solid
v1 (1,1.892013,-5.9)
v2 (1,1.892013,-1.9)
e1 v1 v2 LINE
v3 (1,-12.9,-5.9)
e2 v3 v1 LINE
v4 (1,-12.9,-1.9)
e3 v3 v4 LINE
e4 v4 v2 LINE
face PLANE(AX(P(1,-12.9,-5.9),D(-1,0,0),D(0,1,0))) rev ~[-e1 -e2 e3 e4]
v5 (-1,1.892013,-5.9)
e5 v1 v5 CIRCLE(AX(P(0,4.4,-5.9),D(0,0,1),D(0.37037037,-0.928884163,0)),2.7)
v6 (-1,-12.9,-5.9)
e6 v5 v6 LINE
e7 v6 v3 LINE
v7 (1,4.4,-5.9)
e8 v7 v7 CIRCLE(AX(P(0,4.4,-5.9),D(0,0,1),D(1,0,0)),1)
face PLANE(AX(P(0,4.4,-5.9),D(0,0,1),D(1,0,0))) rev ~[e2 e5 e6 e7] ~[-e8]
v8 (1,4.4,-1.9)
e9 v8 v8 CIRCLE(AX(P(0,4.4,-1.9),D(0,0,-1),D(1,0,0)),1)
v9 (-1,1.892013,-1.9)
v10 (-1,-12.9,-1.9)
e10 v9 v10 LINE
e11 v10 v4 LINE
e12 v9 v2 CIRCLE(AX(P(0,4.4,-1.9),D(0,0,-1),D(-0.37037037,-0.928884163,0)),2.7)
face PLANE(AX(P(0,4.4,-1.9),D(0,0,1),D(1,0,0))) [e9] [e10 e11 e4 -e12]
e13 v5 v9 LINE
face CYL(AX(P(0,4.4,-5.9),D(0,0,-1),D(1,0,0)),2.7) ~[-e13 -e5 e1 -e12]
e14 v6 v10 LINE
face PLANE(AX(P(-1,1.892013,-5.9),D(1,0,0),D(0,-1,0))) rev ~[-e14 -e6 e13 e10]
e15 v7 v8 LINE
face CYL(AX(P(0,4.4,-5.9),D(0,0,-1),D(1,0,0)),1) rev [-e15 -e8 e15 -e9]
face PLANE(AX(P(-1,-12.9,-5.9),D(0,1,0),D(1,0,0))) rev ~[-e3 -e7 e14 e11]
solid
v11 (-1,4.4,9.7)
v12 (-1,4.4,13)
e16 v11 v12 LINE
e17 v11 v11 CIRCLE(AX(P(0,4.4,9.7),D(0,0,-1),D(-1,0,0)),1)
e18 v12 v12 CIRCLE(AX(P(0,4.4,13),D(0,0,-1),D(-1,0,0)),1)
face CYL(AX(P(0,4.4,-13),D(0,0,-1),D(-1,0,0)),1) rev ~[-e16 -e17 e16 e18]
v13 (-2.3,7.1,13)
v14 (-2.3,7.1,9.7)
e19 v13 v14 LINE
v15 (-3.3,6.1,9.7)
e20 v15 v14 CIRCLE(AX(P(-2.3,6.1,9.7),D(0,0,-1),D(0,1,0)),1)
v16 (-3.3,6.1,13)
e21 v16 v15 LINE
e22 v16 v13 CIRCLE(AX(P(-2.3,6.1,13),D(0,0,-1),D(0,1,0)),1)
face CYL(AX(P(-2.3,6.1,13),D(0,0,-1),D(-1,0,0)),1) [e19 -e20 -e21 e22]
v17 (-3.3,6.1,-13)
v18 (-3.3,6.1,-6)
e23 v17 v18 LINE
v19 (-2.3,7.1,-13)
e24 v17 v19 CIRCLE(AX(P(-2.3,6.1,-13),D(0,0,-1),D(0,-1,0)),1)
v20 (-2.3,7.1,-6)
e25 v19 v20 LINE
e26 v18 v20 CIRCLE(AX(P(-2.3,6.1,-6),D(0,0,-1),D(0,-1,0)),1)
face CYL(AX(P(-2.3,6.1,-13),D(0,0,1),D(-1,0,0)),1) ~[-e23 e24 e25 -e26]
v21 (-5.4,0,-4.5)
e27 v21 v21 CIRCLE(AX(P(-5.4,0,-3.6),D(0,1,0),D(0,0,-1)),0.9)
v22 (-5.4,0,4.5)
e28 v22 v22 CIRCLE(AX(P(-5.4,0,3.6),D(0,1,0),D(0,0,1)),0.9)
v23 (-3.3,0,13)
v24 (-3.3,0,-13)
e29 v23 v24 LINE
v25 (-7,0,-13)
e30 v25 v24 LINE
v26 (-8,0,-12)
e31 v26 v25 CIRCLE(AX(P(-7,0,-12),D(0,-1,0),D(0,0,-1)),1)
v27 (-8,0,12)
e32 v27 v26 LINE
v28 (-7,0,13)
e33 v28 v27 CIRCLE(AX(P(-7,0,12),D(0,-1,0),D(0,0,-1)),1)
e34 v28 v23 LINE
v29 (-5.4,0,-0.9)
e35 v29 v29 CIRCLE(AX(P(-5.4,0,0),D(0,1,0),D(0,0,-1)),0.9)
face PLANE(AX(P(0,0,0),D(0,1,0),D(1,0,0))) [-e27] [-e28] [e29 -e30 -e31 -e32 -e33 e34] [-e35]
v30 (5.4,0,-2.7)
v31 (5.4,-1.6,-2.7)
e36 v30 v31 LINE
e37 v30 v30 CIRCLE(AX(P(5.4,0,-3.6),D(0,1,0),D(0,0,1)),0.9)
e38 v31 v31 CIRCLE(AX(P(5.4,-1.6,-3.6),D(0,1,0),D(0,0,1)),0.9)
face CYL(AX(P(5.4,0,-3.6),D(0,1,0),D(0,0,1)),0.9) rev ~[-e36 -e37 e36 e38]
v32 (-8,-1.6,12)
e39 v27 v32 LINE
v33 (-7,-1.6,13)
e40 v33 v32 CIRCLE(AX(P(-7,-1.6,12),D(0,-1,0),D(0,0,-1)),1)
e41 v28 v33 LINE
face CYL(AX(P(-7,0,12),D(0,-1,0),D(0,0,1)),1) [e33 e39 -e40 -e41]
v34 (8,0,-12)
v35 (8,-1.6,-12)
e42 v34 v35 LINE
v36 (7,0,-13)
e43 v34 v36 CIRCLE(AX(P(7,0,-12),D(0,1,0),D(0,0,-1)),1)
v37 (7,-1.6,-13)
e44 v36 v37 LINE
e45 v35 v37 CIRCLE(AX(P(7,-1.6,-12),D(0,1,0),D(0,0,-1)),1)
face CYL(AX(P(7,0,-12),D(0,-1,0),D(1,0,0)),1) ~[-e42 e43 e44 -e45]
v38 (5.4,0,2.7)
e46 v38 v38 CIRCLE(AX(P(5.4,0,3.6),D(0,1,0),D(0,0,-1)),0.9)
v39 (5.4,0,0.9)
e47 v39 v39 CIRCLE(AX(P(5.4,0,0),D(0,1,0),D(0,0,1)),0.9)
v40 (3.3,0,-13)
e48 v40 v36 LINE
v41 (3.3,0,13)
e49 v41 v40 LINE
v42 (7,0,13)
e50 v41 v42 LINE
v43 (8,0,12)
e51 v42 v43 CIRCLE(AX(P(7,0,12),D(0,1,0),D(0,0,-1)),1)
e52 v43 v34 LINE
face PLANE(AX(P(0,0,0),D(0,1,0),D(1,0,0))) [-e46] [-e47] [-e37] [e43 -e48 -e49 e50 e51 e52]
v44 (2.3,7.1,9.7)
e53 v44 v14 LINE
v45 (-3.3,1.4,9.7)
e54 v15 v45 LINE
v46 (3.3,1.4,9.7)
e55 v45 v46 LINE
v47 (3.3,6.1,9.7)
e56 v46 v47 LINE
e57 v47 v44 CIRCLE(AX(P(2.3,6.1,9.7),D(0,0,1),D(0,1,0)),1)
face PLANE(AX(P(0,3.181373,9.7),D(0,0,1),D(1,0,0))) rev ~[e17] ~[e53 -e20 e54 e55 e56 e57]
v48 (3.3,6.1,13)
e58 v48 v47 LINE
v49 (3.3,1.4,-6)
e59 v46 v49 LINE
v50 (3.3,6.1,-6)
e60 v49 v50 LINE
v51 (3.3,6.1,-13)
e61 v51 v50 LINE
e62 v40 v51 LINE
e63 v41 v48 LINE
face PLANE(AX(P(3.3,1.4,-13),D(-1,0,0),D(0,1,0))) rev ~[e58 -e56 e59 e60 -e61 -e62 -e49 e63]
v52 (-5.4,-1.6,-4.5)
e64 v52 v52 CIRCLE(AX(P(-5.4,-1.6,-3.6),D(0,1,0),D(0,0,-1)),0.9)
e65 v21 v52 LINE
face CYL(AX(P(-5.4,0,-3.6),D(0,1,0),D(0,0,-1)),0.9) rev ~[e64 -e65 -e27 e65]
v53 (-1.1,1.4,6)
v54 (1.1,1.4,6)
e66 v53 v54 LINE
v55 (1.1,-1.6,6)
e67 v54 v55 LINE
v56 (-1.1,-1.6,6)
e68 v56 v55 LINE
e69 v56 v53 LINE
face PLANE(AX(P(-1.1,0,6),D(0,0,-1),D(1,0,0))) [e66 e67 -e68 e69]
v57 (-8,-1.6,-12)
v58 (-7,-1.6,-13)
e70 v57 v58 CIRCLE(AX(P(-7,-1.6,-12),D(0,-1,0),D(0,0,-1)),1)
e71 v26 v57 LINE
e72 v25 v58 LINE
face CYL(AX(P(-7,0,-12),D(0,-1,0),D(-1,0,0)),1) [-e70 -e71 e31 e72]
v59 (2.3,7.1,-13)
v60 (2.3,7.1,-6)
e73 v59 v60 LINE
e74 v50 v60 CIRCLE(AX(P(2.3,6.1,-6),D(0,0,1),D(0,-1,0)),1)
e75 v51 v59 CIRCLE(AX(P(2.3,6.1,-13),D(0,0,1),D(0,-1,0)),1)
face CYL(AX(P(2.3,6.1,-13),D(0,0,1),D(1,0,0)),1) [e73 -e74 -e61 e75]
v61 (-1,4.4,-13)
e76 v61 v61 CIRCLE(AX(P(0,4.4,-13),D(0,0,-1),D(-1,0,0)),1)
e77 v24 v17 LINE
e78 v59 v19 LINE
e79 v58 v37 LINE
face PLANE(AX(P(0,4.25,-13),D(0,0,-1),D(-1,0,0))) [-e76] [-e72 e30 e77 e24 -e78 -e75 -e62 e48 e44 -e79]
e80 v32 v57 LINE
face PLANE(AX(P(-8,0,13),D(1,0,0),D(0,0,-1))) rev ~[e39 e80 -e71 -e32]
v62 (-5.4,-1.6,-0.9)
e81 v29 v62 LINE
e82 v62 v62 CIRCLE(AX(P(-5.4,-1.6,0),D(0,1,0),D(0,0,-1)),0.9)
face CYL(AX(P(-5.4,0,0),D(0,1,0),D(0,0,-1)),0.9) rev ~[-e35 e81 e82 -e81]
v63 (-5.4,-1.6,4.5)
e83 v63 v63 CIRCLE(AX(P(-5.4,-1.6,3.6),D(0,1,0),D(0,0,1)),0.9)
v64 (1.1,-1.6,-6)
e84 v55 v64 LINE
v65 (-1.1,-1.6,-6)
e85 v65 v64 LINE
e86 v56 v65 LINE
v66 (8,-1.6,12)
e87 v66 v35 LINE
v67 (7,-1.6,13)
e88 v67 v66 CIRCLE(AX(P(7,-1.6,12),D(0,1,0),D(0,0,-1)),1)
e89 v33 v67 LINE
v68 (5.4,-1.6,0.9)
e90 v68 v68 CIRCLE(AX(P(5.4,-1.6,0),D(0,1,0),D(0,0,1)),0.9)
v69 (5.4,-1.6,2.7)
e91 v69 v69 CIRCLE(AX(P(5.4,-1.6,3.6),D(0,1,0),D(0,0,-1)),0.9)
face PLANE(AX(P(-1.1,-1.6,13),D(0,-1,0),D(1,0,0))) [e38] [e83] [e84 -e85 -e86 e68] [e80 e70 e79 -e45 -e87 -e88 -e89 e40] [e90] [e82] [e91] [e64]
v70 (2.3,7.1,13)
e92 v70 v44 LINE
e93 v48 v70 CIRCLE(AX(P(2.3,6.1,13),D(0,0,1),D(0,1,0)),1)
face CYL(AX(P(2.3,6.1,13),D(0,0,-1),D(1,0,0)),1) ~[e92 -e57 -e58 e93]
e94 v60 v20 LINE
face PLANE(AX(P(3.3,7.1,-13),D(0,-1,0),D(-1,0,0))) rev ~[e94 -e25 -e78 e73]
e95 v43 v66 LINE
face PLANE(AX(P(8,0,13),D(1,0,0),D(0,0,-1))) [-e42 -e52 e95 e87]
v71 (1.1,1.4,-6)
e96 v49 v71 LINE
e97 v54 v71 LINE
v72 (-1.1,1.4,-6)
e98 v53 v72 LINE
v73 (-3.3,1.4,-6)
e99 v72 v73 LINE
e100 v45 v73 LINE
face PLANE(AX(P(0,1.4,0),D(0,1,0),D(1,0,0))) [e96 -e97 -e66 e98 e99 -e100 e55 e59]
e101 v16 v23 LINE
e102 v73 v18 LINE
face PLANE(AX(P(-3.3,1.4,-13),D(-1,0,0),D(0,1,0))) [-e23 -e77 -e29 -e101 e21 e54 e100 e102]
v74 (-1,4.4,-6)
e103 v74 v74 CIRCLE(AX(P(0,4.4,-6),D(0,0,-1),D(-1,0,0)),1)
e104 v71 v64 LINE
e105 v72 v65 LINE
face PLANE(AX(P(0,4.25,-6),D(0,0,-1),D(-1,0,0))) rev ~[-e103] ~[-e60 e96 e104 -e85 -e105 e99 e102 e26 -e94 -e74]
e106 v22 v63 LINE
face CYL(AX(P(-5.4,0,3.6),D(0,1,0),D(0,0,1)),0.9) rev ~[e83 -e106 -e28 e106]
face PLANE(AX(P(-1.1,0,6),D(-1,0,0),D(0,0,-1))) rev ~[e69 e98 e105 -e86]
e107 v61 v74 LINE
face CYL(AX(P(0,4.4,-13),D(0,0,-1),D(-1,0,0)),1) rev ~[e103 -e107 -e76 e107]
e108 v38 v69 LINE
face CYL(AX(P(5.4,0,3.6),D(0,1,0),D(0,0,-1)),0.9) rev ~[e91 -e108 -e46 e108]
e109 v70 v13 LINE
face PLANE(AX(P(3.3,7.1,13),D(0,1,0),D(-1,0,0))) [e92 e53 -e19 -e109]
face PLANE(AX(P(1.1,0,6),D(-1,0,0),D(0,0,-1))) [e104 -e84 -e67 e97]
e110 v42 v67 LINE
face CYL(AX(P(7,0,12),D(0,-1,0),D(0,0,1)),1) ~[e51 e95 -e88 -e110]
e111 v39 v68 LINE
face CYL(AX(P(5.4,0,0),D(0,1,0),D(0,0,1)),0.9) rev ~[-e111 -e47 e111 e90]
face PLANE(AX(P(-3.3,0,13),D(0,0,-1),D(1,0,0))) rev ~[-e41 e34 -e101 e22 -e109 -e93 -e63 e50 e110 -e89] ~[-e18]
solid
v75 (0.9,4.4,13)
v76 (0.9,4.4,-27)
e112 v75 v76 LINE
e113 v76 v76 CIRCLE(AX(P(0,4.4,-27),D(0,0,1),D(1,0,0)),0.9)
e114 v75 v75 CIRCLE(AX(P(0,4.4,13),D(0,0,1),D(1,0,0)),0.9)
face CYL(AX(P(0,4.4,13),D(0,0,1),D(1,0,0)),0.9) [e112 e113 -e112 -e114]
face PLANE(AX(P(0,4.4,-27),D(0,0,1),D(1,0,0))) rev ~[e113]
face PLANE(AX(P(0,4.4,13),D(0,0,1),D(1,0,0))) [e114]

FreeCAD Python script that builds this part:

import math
import FreeCAD as App
import Part
import Sketcher

V = App.Vector
Q = App.Units.Quantity


def edges_at(feature, points):
    """Names of the edges that pass closest to the given points."""
    edges = feature.Shape.Edges
    near = lambda p: min(range(len(edges)), key=lambda i: edges[i].distToShape(Part.Vertex(*p))[0])
    return sorted({f"Edge{near(p) + 1}" for p in points})

doc = App.newDocument("Part")
body = doc.addObject("PartDesign::Body", "Body")

# Sketch on XZ plane
sketch1 = body.newObject("Sketcher::SketchObject", "Sketch")
sketch1.AttachmentSupport = (doc.getObject("XZ_Plane"), [""])
sketch1.MapMode = "FlatFace"
sketch1.addGeometry([
    Part.LineSegment(V(-8, -13, 0), V(-8, 13, 0)),  # 0
    Part.LineSegment(V(-8, 13, 0), V(8, 13, 0)),  # 1
    Part.LineSegment(V(8, 13, 0), V(8, -13, 0)),  # 2
    Part.LineSegment(V(8, -13, 0), V(-8, -13, 0)),  # 3
    Part.Circle(V(-5.4, 3.6, 0), V(0, 0, 1), 0.9),  # 4
    Part.Circle(V(5.4, 3.6, 0), V(0, 0, 1), 0.9),  # 5
    Part.Circle(V(-5.4, 0, 0), V(0, 0, 1), 0.9),  # 6
    Part.Circle(V(-5.4, -3.6, 0), V(0, 0, 1), 0.9),  # 7
    Part.LineSegment(V(1.1, 6, 0), V(-1.1, 6, 0)),  # 8
    Part.LineSegment(V(-1.1, 6, 0), V(-1.1, -6, 0)),  # 9
    Part.LineSegment(V(-1.1, -6, 0), V(1.1, -6, 0)),  # 10
    Part.LineSegment(V(1.1, -6, 0), V(1.1, 6, 0)),  # 11
    Part.Circle(V(5.4, 0, 0), V(0, 0, 1), 0.9),  # 12
    Part.Circle(V(5.4, -3.6, 0), V(0, 0, 1), 0.9),  # 13
], False)
sketch1.addConstraint([
    Sketcher.Constraint("Coincident", 0, 2, 1, 1),
    Sketcher.Constraint("Coincident", 1, 2, 2, 1),
    Sketcher.Constraint("Coincident", 2, 2, 3, 1),
    Sketcher.Constraint("Coincident", 3, 2, 0, 1),
    Sketcher.Constraint("Coincident", 8, 2, 9, 1),
    Sketcher.Constraint("Coincident", 9, 2, 10, 1),
    Sketcher.Constraint("Coincident", 10, 2, 11, 1),
    Sketcher.Constraint("Coincident", 11, 2, 8, 1),
    Sketcher.Constraint("Vertical", 0),
    Sketcher.Constraint("Horizontal", 1),
    Sketcher.Constraint("Vertical", 2),
    Sketcher.Constraint("Horizontal", 3),
    Sketcher.Constraint("Horizontal", 8),
    Sketcher.Constraint("Vertical", 9),
    Sketcher.Constraint("Horizontal", 10),
    Sketcher.Constraint("Vertical", 11),
    Sketcher.Constraint("Equal", 4, 5),
    Sketcher.Constraint("Equal", 5, 6),
    Sketcher.Constraint("Equal", 6, 7),
    Sketcher.Constraint("Equal", 7, 12),
    Sketcher.Constraint("Equal", 12, 13),
    Sketcher.Constraint("Symmetric", 5, 3, 7, 3, -1, 1),
    Sketcher.Constraint("Symmetric", 6, 3, 12, 3, -1, 1),
    Sketcher.Constraint("Symmetric", 4, 3, 13, 3, -1, 1),
    Sketcher.Constraint("Symmetric", 0, 2, 2, 2, -1, 1),
    Sketcher.Constraint("Symmetric", 8, 2, 10, 2, -1, 1),
    Sketcher.Constraint("Symmetric", 4, 3, 5, 3, -2),
    Sketcher.Constraint("PointOnObject", 6, 3, -1),
    Sketcher.Constraint("Vertical", 4, 3, 6, 3),
    Sketcher.Constraint("Diameter", 4, Q("1.8 mm")),
    Sketcher.Constraint("DistanceX", 1, 1, 1, 2, Q("16 mm")),
    Sketcher.Constraint("DistanceY", 0, 1, 0, 2, Q("26 mm")),
    Sketcher.Constraint("DistanceY", 9, 2, 9, 1, Q("12 mm")),
    Sketcher.Constraint("DistanceX", 8, 2, 8, 1, Q("2.2 mm")),
    Sketcher.Constraint("DistanceX", 4, 3, -1, 1, Q("5.4 mm")),
    Sketcher.Constraint("DistanceY", -1, 1, 4, 3, Q("3.6 mm")),
])
pad1 = body.newObject("PartDesign::Pad", "Pad")
pad1.Profile = sketch1
pad1.Length = 1.6

# Sketch on XZ plane
sketch2 = body.newObject("Sketcher::SketchObject", "Sketch001")
sketch2.AttachmentSupport = (doc.getObject("XZ_Plane"), [""])
sketch2.MapMode = "FlatFace"
sketch2.addGeometry([
    Part.LineSegment(V(-3.3, -13, 0), V(-3.3, 13, 0)),  # 0
    Part.LineSegment(V(-3.3, 13, 0), V(3.3, 13, 0)),  # 1
    Part.LineSegment(V(3.3, 13, 0), V(3.3, -13, 0)),  # 2
    Part.LineSegment(V(3.3, -13, 0), V(-3.3, -13, 0)),  # 3
    Part.LineSegment(V(1.1, 6, 0), V(-1.1, 6, 0)),  # 4
    Part.LineSegment(V(-1.1, 6, 0), V(-1.1, -6, 0)),  # 5
    Part.LineSegment(V(-1.1, -6, 0), V(1.1, -6, 0)),  # 6
    Part.LineSegment(V(1.1, -6, 0), V(1.1, 6, 0)),  # 7
], False)
sketch2.addConstraint([
    Sketcher.Constraint("Coincident", 0, 2, 1, 1),
    Sketcher.Constraint("Coincident", 1, 2, 2, 1),
    Sketcher.Constraint("Coincident", 2, 2, 3, 1),
    Sketcher.Constraint("Coincident", 3, 2, 0, 1),
    Sketcher.Constraint("Coincident", 4, 2, 5, 1),
    Sketcher.Constraint("Coincident", 5, 2, 6, 1),
    Sketcher.Constraint("Coincident", 6, 2, 7, 1),
    Sketcher.Constraint("Coincident", 7, 2, 4, 1),
    Sketcher.Constraint("Vertical", 0),
    Sketcher.Constraint("Horizontal", 1),
    Sketcher.Constraint("Vertical", 2),
    Sketcher.Constraint("Horizontal", 3),
    Sketcher.Constraint("Horizontal", 4),
    Sketcher.Constraint("Vertical", 5),
    Sketcher.Constraint("Horizontal", 6),
    Sketcher.Constraint("Vertical", 7),
    Sketcher.Constraint("Symmetric", 0, 2, 2, 2, -1, 1),
    Sketcher.Constraint("Symmetric", 4, 2, 6, 2, -1, 1),
    Sketcher.Constraint("DistanceY", 0, 1, 0, 2, Q("26 mm")),
    Sketcher.Constraint("DistanceY", 5, 2, 5, 1, Q("12 mm")),
    Sketcher.Constraint("DistanceX", 1, 1, 1, 2, Q("6.6 mm")),
    Sketcher.Constraint("DistanceX", 4, 2, 4, 1, Q("2.2 mm")),
])
pad2 = body.newObject("PartDesign::Pad", "Pad001")
pad2.Profile = sketch2
pad2.Length = 1.4
pad2.Reversed = True

# Sketch on XY plane
sketch3 = body.newObject("Sketcher::SketchObject", "Sketch002")
sketch3.AttachmentSupport = (doc.getObject("XY_Plane"), [""])
sketch3.MapMode = "FlatFace"
sketch3.AttachmentOffset = App.Placement(V(0, 0, -13), App.Rotation())
sketch3.addGeometry([
    Part.LineSegment(V(3.3, 7.1, 0), V(3.3, 1.4, 0)),
    Part.LineSegment(V(3.3, 1.4, 0), V(-3.3, 1.4, 0)),
    Part.LineSegment(V(-3.3, 1.4, 0), V(-3.3, 7.1, 0)),
    Part.LineSegment(V(-3.3, 7.1, 0), V(3.3, 7.1, 0)),
], False)
sketch3.addConstraint([
    Sketcher.Constraint("Coincident", 0, 2, 1, 1),
    Sketcher.Constraint("Coincident", 1, 2, 2, 1),
    Sketcher.Constraint("Coincident", 2, 2, 3, 1),
    Sketcher.Constraint("Coincident", 3, 2, 0, 1),
    Sketcher.Constraint("Vertical", 0),
    Sketcher.Constraint("Horizontal", 1),
    Sketcher.Constraint("Vertical", 2),
    Sketcher.Constraint("Horizontal", 3),
    Sketcher.Constraint("DistanceX", 1, 2, 1, 1, Q("6.6 mm")),
    Sketcher.Constraint("DistanceY", 0, 2, 0, 1, Q("5.7 mm")),
    Sketcher.Constraint("DistanceX", -1, 1, 0, 2, Q("3.3 mm")),
    Sketcher.Constraint("DistanceY", -1, 1, 0, 2, Q("1.4 mm")),
])
pad3 = body.newObject("PartDesign::Pad", "Pad002")
pad3.Profile = sketch3
pad3.Length = 7

# Sketch on XY plane
sketch4 = body.newObject("Sketcher::SketchObject", "Sketch003")
sketch4.AttachmentSupport = (doc.getObject("XY_Plane"), [""])
sketch4.MapMode = "FlatFace"
sketch4.AttachmentOffset = App.Placement(V(0, 0, 13), App.Rotation())
sketch4.addGeometry([
    Part.LineSegment(V(1.1, -1.6, 0), V(1.1, 1.4, 0)),  # 0
    Part.LineSegment(V(1.1, 1.4, 0), V(3.3, 1.4, 0)),  # 1
    Part.LineSegment(V(3.3, 1.4, 0), V(3.3, 7.1, 0)),  # 2
    Part.LineSegment(V(3.3, 7.1, 0), V(-3.3, 7.1, 0)),  # 3
    Part.LineSegment(V(-3.3, 7.1, 0), V(-3.3, 1.4, 0)),  # 4
    Part.LineSegment(V(-3.3, 1.4, 0), V(-1.1, 1.4, 0)),  # 5
    Part.LineSegment(V(-1.1, 1.4, 0), V(-1.1, -1.6, 0)),  # 6
    Part.LineSegment(V(-1.1, -1.6, 0), V(1.1, -1.6, 0)),  # 7
], False)
sketch4.addConstraint([
    Sketcher.Constraint("Coincident", 0, 2, 1, 1),
    Sketcher.Constraint("Coincident", 1, 2, 2, 1),
    Sketcher.Constraint("Coincident", 2, 2, 3, 1),
    Sketcher.Constraint("Coincident", 3, 2, 4, 1),
    Sketcher.Constraint("Coincident", 4, 2, 5, 1),
    Sketcher.Constraint("Coincident", 5, 2, 6, 1),
    Sketcher.Constraint("Coincident", 6, 2, 7, 1),
    Sketcher.Constraint("Coincident", 7, 2, 0, 1),
    Sketcher.Constraint("Vertical", 0),
    Sketcher.Constraint("Horizontal", 1),
    Sketcher.Constraint("Vertical", 2),
    Sketcher.Constraint("Horizontal", 3),
    Sketcher.Constraint("Vertical", 4),
    Sketcher.Constraint("Horizontal", 5),
    Sketcher.Constraint("Vertical", 6),
    Sketcher.Constraint("Horizontal", 7),
    Sketcher.Constraint("Symmetric", 1, 2, 4, 2, -2),
    Sketcher.Constraint("Equal", 1, 5),
    Sketcher.Constraint("Equal", 5, 7),
    Sketcher.Constraint("DistanceY", 0, 1, 0, 2, Q("3 mm")),
    Sketcher.Constraint("DistanceX", 1, 1, 1, 2, Q("2.2 mm")),
    Sketcher.Constraint("DistanceY", 2, 1, 2, 2, Q("5.7 mm")),
    Sketcher.Constraint("DistanceY", -1, 1, 0, 2, Q("1.4 mm")),
])
pad4 = body.newObject("PartDesign::Pad", "Pad003")
pad4.Profile = sketch4
pad4.Length = 3.3
pad4.Reversed = True

# Sketch on XY plane
sketch5 = body.newObject("Sketcher::SketchObject", "Sketch004")
sketch5.AttachmentSupport = (doc.getObject("XY_Plane"), [""])
sketch5.MapMode = "FlatFace"
sketch5.AttachmentOffset = App.Placement(V(0, 0, -13), App.Rotation())
sketch5.addGeometry(Part.Circle(V(0, 4.4, 0), V(0, 0, 1), 1), False)
sketch5.addConstraint([
    Sketcher.Constraint("PointOnObject", 0, 3, -2),
    Sketcher.Constraint("Diameter", 0, Q("2 mm")),
    Sketcher.Constraint("DistanceY", -1, 1, 0, 3, Q("4.4 mm")),
])
pocket1 = body.newObject("PartDesign::Pocket", "Pocket")
pocket1.Profile = sketch5
pocket1.Type = "ThroughAll"
pocket1.Reversed = True
doc.recompute()

fillet = body.newObject("PartDesign::Fillet", "Fillet")
fillet.Base = (pocket1, edges_at(pocket1, [
    (-3.3, 7.1, 11.35),
    (3.3, 7.1, 11.35),
    (3.3, 7.1, -9.5),
    (-3.3, 7.1, -9.5),
]))
fillet.Radius = 1
doc.recompute()

fillet2 = body.newObject("PartDesign::Fillet", "Fillet001")
fillet2.Base = (fillet, edges_at(fillet, [
    (8, -0.8, 13),
    (-8, -0.8, 13),
    (-8, -0.8, -13),
    (8, -0.8, -13),
]))
fillet2.Radius = 1
body2 = doc.addObject("PartDesign::Body", "Body001")

# Sketch on XY plane
sketch6 = body2.newObject("Sketcher::SketchObject", "Sketch005")
sketch6.AttachmentSupport = (doc.getObject("XY_Plane001"), [""])
sketch6.MapMode = "FlatFace"
sketch6.AttachmentOffset = App.Placement(V(0, 0, -5.9), App.Rotation())
sketch6.addGeometry([
    Part.Circle(V(0, 4.4, 0), V(0, 0, 1), 2.7),
    Part.Circle(V(0, 4.4, 0), V(0, 0, 1), 1),
], False)
sketch6.addConstraint([
    Sketcher.Constraint("Coincident", 1, 3, 0, 3),
    Sketcher.Constraint("PointOnObject", 0, 3, -2),
    Sketcher.Constraint("Diameter", 1, Q("2 mm")),
    Sketcher.Constraint("Diameter", 0, Q("5.4 mm")),
    Sketcher.Constraint("DistanceY", -1, 1, 0, 3, Q("4.4 mm")),
])
pad5 = body2.newObject("PartDesign::Pad", "Pad004")
pad5.Profile = sketch6
pad5.Length = 4

# Sketch on XY plane
sketch7 = body2.newObject("Sketcher::SketchObject", "Sketch006")
sketch7.AttachmentSupport = (doc.getObject("XY_Plane001"), [""])
sketch7.MapMode = "FlatFace"
sketch7.AttachmentOffset = App.Placement(V(0, 0, -5.9), App.Rotation())
sketch7.addGeometry([
    Part.ArcOfCircle(Part.Circle(V(0, 4.4, 0), V(0, 0, 1), 2.7), math.radians(-68.261539), math.radians(0)),  # 0
    Part.ArcOfCircle(Part.Circle(V(0, 4.4, 0), V(0, 0, 1), 2.7), math.radians(0), math.radians(248.261539)),  # 1
    Part.LineSegment(V(-1, 1.892013, 0), V(-1, -12.9, 0)),  # 2
    Part.LineSegment(V(-1, -12.9, 0), V(1, -12.9, 0)),  # 3
    Part.LineSegment(V(1, -12.9, 0), V(1, 1.892013, 0)),  # 4
    Part.Circle(V(0, 4.4, 0), V(0, 0, 1), 1),  # 5
], False)
sketch7.addConstraint([
    Sketcher.Constraint("Tangent", 0, 2, 1, 1),
    Sketcher.Constraint("Coincident", 1, 2, 2, 1),
    Sketcher.Constraint("Coincident", 2, 2, 3, 1),
    Sketcher.Constraint("Coincident", 3, 2, 4, 1),
    Sketcher.Constraint("Coincident", 4, 2, 0, 1),
    Sketcher.Constraint("Vertical", 2),
    Sketcher.Constraint("Horizontal", 3),
    Sketcher.Constraint("Vertical", 4),
    Sketcher.Constraint("Coincident", 5, 3, 0, 3),
    Sketcher.Constraint("Equal", 0, 1),
    Sketcher.Constraint("Symmetric", 1, 2, 4, 2, -2),
    Sketcher.Constraint("Horizontal", 5, 3, 0, 2),
    Sketcher.Constraint("Diameter", 5, Q("2 mm")),
    Sketcher.Constraint("Radius", 0, Q("2.7 mm")),
    Sketcher.Constraint("DistanceX", 3, 1, 3, 2, Q("2 mm")),
    Sketcher.Constraint("DistanceY", -1, 1, 0, 3, Q("4.4 mm")),
    Sketcher.Constraint("DistanceY", 2, 2, -1, 1, Q("12.9 mm")),
])
pad6 = body2.newObject("PartDesign::Pad", "Pad005")
pad6.Profile = sketch7
pad6.Length = 4
body3 = doc.addObject("PartDesign::Body", "Body002")

# Sketch on XY plane
sketch8 = body3.newObject("Sketcher::SketchObject", "Sketch007")
sketch8.AttachmentSupport = (doc.getObject("XY_Plane002"), [""])
sketch8.MapMode = "FlatFace"
sketch8.AttachmentOffset = App.Placement(V(0, 0, 13), App.Rotation())
sketch8.addGeometry(Part.Circle(V(0, 4.4, 0), V(0, 0, 1), 0.9), False)
sketch8.addConstraint([
    Sketcher.Constraint("PointOnObject", 0, 3, -2),
    Sketcher.Constraint("Diameter", 0, Q("1.8 mm")),
    Sketcher.Constraint("DistanceY", -1, 1, 0, 3, Q("4.4 mm")),
])
pad7 = body3.newObject("PartDesign::Pad", "Pad006")
pad7.Profile = sketch8
pad7.Length = 40
pad7.Reversed = True

doc.recompute()
